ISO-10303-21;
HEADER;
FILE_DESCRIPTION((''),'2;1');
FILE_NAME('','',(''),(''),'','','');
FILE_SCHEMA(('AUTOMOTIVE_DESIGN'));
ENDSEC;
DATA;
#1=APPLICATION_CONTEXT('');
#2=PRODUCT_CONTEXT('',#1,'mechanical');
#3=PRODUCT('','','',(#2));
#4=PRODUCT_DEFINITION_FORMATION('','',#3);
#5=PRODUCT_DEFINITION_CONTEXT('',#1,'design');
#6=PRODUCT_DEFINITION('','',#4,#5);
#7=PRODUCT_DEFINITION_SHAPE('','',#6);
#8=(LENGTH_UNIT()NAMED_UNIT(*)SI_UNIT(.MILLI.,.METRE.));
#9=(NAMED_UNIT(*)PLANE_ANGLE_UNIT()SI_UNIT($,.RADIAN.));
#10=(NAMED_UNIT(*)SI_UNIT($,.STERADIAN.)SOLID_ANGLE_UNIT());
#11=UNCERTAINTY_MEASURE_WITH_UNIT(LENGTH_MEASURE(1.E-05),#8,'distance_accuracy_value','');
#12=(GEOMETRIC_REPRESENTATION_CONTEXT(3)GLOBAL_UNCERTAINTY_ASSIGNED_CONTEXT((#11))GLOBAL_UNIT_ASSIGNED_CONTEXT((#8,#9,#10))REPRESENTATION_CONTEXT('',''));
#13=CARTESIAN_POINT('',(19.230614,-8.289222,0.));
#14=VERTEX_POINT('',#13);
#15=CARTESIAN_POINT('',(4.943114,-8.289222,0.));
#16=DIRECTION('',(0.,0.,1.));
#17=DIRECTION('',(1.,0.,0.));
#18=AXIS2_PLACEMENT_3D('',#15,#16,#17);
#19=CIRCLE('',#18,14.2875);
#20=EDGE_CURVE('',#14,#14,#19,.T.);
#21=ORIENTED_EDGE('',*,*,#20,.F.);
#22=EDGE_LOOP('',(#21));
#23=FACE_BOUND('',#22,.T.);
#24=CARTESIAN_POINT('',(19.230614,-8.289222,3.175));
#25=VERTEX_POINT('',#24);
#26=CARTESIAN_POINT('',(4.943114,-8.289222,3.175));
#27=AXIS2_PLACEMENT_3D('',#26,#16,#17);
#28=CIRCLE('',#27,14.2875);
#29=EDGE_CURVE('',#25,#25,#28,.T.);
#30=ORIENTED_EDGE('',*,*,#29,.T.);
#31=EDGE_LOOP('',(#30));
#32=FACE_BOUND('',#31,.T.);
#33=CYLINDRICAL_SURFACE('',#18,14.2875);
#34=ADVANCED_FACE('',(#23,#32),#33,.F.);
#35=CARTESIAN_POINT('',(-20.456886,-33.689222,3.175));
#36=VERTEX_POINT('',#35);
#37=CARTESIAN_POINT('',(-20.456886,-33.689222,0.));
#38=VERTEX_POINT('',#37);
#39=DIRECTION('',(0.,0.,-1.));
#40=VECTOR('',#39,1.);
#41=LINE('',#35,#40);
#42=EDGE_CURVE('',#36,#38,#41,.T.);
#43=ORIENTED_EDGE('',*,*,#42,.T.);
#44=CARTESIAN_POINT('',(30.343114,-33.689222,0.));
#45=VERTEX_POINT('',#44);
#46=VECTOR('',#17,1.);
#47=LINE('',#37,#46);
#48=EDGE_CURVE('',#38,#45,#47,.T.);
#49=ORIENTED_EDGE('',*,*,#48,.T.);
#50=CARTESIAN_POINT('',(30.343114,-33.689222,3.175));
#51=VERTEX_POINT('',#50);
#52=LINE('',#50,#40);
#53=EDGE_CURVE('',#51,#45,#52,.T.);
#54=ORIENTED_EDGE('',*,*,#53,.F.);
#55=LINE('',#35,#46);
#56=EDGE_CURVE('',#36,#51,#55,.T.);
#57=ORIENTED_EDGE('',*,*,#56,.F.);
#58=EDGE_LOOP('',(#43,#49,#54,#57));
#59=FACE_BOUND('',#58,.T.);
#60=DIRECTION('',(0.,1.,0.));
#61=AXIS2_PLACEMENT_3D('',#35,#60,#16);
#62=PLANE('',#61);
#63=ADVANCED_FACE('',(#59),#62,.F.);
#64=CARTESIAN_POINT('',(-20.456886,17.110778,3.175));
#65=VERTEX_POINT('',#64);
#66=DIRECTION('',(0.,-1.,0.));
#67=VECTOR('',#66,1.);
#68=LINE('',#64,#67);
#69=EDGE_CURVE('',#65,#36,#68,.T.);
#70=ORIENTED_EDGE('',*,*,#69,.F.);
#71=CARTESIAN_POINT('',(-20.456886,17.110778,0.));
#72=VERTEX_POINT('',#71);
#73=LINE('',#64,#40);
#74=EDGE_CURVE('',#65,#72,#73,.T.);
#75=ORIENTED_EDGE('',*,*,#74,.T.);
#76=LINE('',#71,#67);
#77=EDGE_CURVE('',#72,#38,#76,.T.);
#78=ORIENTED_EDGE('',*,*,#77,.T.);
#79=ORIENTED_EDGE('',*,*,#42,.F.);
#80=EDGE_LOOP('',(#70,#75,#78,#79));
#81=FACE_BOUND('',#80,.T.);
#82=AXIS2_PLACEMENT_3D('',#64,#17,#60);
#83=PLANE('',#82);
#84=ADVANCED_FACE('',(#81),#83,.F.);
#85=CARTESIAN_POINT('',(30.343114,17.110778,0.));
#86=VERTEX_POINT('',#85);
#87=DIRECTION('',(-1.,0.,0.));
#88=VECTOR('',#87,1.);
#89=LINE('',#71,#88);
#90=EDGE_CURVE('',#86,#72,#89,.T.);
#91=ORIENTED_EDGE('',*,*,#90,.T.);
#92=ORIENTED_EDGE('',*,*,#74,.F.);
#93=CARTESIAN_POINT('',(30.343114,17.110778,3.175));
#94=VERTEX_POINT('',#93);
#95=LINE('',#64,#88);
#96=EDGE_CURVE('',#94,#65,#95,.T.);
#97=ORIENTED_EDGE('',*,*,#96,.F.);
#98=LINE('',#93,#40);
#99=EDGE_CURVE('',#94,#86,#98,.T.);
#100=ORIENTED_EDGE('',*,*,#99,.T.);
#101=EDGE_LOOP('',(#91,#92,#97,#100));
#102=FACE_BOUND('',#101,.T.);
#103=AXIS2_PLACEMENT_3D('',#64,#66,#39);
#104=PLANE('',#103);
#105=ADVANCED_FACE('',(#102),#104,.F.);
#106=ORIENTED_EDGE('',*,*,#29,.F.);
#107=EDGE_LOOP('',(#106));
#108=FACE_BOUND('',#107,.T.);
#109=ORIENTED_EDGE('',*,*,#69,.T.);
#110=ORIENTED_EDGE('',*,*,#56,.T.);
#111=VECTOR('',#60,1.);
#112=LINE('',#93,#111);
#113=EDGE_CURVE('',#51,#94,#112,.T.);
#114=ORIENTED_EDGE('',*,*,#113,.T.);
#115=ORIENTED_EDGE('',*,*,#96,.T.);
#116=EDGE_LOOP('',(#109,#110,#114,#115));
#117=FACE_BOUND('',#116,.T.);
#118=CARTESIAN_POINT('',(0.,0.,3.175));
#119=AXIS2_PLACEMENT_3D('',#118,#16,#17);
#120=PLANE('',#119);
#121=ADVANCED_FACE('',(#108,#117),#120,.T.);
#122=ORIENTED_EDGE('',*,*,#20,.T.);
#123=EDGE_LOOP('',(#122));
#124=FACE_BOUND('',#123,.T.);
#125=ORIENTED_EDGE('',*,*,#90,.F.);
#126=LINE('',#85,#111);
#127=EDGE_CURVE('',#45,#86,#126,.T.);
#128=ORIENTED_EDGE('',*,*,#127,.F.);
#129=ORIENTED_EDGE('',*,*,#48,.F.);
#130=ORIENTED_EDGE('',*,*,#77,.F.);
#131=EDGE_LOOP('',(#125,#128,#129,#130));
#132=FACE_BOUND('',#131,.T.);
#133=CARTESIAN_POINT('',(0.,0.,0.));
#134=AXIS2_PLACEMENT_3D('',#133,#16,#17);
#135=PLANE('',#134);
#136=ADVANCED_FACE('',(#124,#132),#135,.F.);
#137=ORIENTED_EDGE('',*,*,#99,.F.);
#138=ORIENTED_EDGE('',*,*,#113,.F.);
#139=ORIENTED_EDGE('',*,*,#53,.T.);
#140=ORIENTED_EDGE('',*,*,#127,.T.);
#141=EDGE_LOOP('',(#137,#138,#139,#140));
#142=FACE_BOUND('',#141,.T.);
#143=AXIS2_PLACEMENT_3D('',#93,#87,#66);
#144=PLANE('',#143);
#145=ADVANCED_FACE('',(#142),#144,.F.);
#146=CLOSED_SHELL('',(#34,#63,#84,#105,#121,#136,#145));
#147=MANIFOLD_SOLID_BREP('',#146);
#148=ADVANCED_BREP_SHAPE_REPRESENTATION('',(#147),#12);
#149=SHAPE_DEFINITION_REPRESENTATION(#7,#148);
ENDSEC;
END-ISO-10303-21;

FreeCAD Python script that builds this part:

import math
import FreeCAD as App
import Part
import Sketcher
from FreeCAD import Vector
Q = App.Units.Quantity


def add_polygon(sketch, points):
    """Adds a closed chain of lines whose ends are joined by coincident constraints."""
    first, n = sketch.GeometryCount, len(points)
    for a, b in zip(points, points[1:] + points[:1]):
        sketch.addGeometry(Part.LineSegment(App.Vector(*a, 0), App.Vector(*b, 0)), False)
    for i in range(n):
        sketch.addConstraint(Sketcher.Constraint("Coincident", first + i, 2, first + (i + 1) % n, 1))

doc = App.newDocument("Part")
params = doc.addObject("Spreadsheet::Sheet", "Params")
for row, (alias, value) in enumerate([
    ("sketch1_width", "2 in"),
    ("pad1_length", "0.125 in"),
    ("sketch2_radius", "0.5625 in"),
    ("pocket1_length", "0.125 in"),
], start=1):
    params.set(f"A{row}", alias)
    params.set(f"B{row}", "=" + value)
    params.setAlias(f"B{row}", alias)

body = doc.addObject("PartDesign::Body", "Body")

# Sketch on XY plane
sketch1 = body.newObject("Sketcher::SketchObject", "Sketch")
sketch1.AttachmentSupport = (doc.getObject("XY_Plane"), [""])
sketch1.MapMode = "FlatFace"
add_polygon(sketch1, [(-20.456886, 17.110778), (-20.456886, -33.689222), (30.343114, -33.689222), (30.343114, 17.110778)])  # lines 0-3
sketch1.addConstraint([
    Sketcher.Constraint("Vertical", 0),
    Sketcher.Constraint("Horizontal", 1),
    Sketcher.Constraint("Vertical", 2),
    Sketcher.Constraint("Horizontal", 3),
    Sketcher.Constraint("Equal", 3, 0),
    Sketcher.Constraint("DistanceX", 1, 1, 1, 2, Q("2 in")),
    Sketcher.Constraint("DistanceY", 0, 2, -1, 1, Q("33.689222 mm")),
    Sketcher.Constraint("DistanceX", 0, 2, -1, 1, Q("20.456886 mm")),
])
sketch1.setExpression("Constraints[9]", "Params.sketch1_width")
pad1 = body.newObject("PartDesign::Pad", "Pad")
pad1.Profile = sketch1
pad1.setExpression("Length", "Params.pad1_length")

# Sketch on XY plane
sketch2 = body.newObject("Sketcher::SketchObject", "Sketch001")
sketch2.AttachmentSupport = (doc.getObject("XY_Plane"), [""])
sketch2.MapMode = "FlatFace"
sketch2.AttachmentOffset = App.Placement(Vector(0, 0, 0.125 * 25.4), App.Rotation())
sketch2.addGeometry([
    Part.ArcOfCircle(Part.Circle(Vector(4.943114, -8.289222, 0), Vector(0, 0, 1), 14.2875), math.radians(90), math.radians(180)),
    Part.ArcOfCircle(Part.Circle(Vector(4.943114, -8.289222, 0), Vector(0, 0, 1), 14.2875), math.radians(-180), math.radians(-90)),
    Part.ArcOfCircle(Part.Circle(Vector(4.943114, -8.289222, 0), Vector(0, 0, 1), 14.2875), math.radians(-90), math.radians(0)),
    Part.ArcOfCircle(Part.Circle(Vector(4.943114, -8.289222, 0), Vector(0, 0, 1), 14.2875), math.radians(0), math.radians(90)),
], False)
sketch2.addConstraint([
    Sketcher.Constraint("Tangent", 0, 2, 1, 1),
    Sketcher.Constraint("Tangent", 1, 2, 2, 1),
    Sketcher.Constraint("Tangent", 2, 2, 3, 1),
    Sketcher.Constraint("Tangent", 3, 2, 0, 1),
    Sketcher.Constraint("Equal", 0, 1),
    Sketcher.Constraint("Horizontal", 3, 3, 0, 2),
    Sketcher.Constraint("Horizontal", 0, 2, 2, 2),
    Sketcher.Constraint("Vertical", 3, 3, 1, 2),
    Sketcher.Constraint("Vertical", 1, 2, 3, 2),
    Sketcher.Constraint("Radius", 0, Q("0.5625 in")),
    Sketcher.Constraint("DistanceY", 0, 3, -1, 1, Q("8.289222 mm")),
    Sketcher.Constraint("DistanceX", -1, 1, 0, 3, Q("4.943114 mm")),
])
sketch2.setExpression("Constraints[9]", "Params.sketch2_radius")
pocket1 = body.newObject("PartDesign::Pocket", "Pocket")
pocket1.Profile = sketch2
pocket1.setExpression("Length", "Params.pocket1_length")

doc.recompute()
